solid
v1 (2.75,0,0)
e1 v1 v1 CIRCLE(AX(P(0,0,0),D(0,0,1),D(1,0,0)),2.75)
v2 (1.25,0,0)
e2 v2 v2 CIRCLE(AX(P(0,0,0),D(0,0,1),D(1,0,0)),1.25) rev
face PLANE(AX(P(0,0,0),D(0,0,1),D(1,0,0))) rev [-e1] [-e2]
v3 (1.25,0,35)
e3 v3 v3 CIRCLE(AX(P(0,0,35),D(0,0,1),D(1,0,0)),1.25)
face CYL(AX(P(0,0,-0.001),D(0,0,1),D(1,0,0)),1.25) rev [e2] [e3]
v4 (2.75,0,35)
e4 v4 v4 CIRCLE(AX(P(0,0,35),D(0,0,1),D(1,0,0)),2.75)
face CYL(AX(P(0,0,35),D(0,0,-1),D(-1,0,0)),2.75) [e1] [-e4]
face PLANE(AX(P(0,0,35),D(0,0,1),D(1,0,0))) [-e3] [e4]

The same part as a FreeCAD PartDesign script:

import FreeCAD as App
import Part
import Sketcher

V = App.Vector
Q = App.Units.Quantity

doc = App.newDocument("Part")
body = doc.addObject("PartDesign::Body", "Body")

# Sketch on XY plane
sketch1 = body.newObject("Sketcher::SketchObject", "Sketch")
sketch1.AttachmentSupport = (doc.getObject("XY_Plane"), [""])
sketch1.MapMode = "FlatFace"
sketch1.addGeometry(Part.Circle(V(0, 0, 0), V(0, 0, 1), 2.8), False)
sketch1.addConstraint([
    Sketcher.Constraint("Coincident", 0, 3, -1, 1),
    Sketcher.Constraint("Diameter", 0, Q("5.5 mm")),
])
pad1 = body.newObject("PartDesign::Pad", "Pad")
pad1.Profile = sketch1
pad1.Length = 35

# Sketch on XY plane
sketch2 = body.newObject("Sketcher::SketchObject", "Sketch001")
sketch2.AttachmentSupport = (doc.getObject("XY_Plane"), [""])
sketch2.MapMode = "FlatFace"
sketch2.AttachmentOffset = App.Placement(V(0, 0, 35), App.Rotation())
sketch2.addGeometry(Part.Circle(V(0, 0, 0), V(0, 0, 1), 1.2), False)
sketch2.addConstraint([
    Sketcher.Constraint("Coincident", 0, 3, -1, 1),
    Sketcher.Constraint("Diameter", 0, Q("2.5 mm")),
])
pocket1 = body.newObject("PartDesign::Pocket", "Pocket")
pocket1.Profile = sketch2
pocket1.Type = "UpToFirst"

doc.recompute()
